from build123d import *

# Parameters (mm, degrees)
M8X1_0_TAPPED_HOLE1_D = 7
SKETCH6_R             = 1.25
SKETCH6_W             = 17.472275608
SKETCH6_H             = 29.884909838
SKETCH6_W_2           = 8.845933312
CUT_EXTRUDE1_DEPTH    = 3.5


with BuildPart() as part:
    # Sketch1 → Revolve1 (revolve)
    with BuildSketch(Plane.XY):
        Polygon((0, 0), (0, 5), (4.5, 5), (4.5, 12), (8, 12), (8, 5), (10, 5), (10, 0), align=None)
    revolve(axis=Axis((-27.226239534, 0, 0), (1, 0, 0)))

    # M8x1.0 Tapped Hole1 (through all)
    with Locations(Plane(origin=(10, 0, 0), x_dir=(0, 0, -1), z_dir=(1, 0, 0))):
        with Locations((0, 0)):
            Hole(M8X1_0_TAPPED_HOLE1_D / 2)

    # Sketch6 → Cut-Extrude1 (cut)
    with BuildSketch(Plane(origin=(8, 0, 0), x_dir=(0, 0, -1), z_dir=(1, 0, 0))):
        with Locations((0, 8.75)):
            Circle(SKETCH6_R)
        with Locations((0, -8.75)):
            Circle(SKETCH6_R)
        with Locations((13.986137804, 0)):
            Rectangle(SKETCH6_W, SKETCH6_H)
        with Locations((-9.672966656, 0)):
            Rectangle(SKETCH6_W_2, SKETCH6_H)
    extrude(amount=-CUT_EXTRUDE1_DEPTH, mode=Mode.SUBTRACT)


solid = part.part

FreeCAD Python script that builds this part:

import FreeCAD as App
import Part
import Sketcher
from FreeCAD import Vector

doc = App.newDocument("Part")
body = doc.addObject("PartDesign::Body", "Body")

# Sketch on XY plane
sketch1 = body.newObject("Sketcher::SketchObject", "Sketch")
sketch1.AttachmentSupport = (doc.getObject("XY_Plane"), [""])
sketch1.MapMode = "FlatFace"
sketch1.addGeometry(Part.LineSegment(Vector(0, 5, 0), Vector(0, 0, 0)), False)
sketch1.addGeometry(Part.LineSegment(Vector(0, 0, 0), Vector(10, 0, 0)), False)
sketch1.addGeometry(Part.LineSegment(Vector(10, 0, 0), Vector(10, 5, 0)), False)
sketch1.addGeometry(Part.LineSegment(Vector(10, 5, 0), Vector(8, 5, 0)), False)
sketch1.addGeometry(Part.LineSegment(Vector(8, 5, 0), Vector(8, 12, 0)), False)
sketch1.addGeometry(Part.LineSegment(Vector(8, 12, 0), Vector(4.5, 12, 0)), False)
sketch1.addGeometry(Part.LineSegment(Vector(4.5, 12, 0), Vector(4.5, 5, 0)), False)
sketch1.addGeometry(Part.LineSegment(Vector(4.5, 5, 0), Vector(0, 5, 0)), False)
sketch1.addConstraint(Sketcher.Constraint("Coincident", 0, 2, 1, 1))
sketch1.addConstraint(Sketcher.Constraint("Coincident", 1, 2, 2, 1))
sketch1.addConstraint(Sketcher.Constraint("Coincident", 2, 2, 3, 1))
sketch1.addConstraint(Sketcher.Constraint("Coincident", 3, 2, 4, 1))
sketch1.addConstraint(Sketcher.Constraint("Coincident", 4, 2, 5, 1))
sketch1.addConstraint(Sketcher.Constraint("Coincident", 5, 2, 6, 1))
sketch1.addConstraint(Sketcher.Constraint("Coincident", 6, 2, 7, 1))
sketch1.addConstraint(Sketcher.Constraint("Coincident", 7, 2, 0, 1))
sketch1.addConstraint(Sketcher.Constraint("Vertical", 0))
sketch1.addConstraint(Sketcher.Constraint("Horizontal", 1))
sketch1.addConstraint(Sketcher.Constraint("Vertical", 2))
sketch1.addConstraint(Sketcher.Constraint("Horizontal", 3))
sketch1.addConstraint(Sketcher.Constraint("Vertical", 4))
sketch1.addConstraint(Sketcher.Constraint("Horizontal", 5))
sketch1.addConstraint(Sketcher.Constraint("Vertical", 6))
sketch1.addConstraint(Sketcher.Constraint("Horizontal", 7))
sketch1.addConstraint(Sketcher.Constraint("Coincident", 0, 2, -1, 1))
sketch1.addConstraint(Sketcher.Constraint("Horizontal", 3, 2, 6, 2))
sketch1.addConstraint(Sketcher.Constraint("DistanceX", 1, 1, 1, 2, 10.0))
sketch1.addConstraint(Sketcher.Constraint("DistanceX", 3, 2, 3, 1, 2.0))
sketch1.addConstraint(Sketcher.Constraint("DistanceY", 0, 2, 0, 1, 5.0))
sketch1.addConstraint(Sketcher.Constraint("DistanceY", 4, 1, 4, 2, 7.0))
sketch1.addConstraint(Sketcher.Constraint("DistanceX", 5, 2, 5, 1, 3.5))
revolution = body.newObject("PartDesign::Revolution", "Revolution")
revolution.Profile = sketch1
revolution.ReferenceAxis = (sketch1, ["H_Axis"])
revolution.Angle = 360

# Sketch on YZ plane
sketch2 = body.newObject("Sketcher::SketchObject", "Sketch001")
sketch2.AttachmentSupport = (doc.getObject("YZ_Plane"), [""])
sketch2.MapMode = "FlatFace"
sketch2.AttachmentOffset = App.Placement(Vector(0, 0, 10), App.Rotation())
sketch2.addGeometry(Part.Circle(Vector(0, 0, 0), Vector(0, 0, 1), 3.5), False)
sketch2.addConstraint(Sketcher.Constraint("Coincident", 0, 3, -1, 1))
sketch2.addConstraint(Sketcher.Constraint("Diameter", 0, 7.0))
doc.recompute()
hole = body.newObject("PartDesign::Hole", "Hole")
hole.Profile = sketch2
hole.ThreadType = "None"
hole.Diameter = 7
hole.DepthType = "ThroughAll"

# Sketch on YZ plane
sketch3 = body.newObject("Sketcher::SketchObject", "Sketch002")
sketch3.AttachmentSupport = (doc.getObject("YZ_Plane"), [""])
sketch3.MapMode = "FlatFace"
sketch3.AttachmentOffset = App.Placement(Vector(0, 0, 8), App.Rotation())
sketch3.addGeometry(Part.Circle(Vector(8.8, 0, 0), Vector(0, 0, 1), 1.2), False)
sketch3.addGeometry(Part.Circle(Vector(-8.8, 0, 0), Vector(0, 0, 1), 1.2), False)
sketch3.addGeometry(Part.LineSegment(Vector(14.9, -5.2, 0), Vector(-14.9, -5.2, 0)), False)
sketch3.addGeometry(Part.LineSegment(Vector(-14.9, -5.2, 0), Vector(-14.9, -22.7, 0)), False)
sketch3.addGeometry(Part.LineSegment(Vector(-14.9, -22.7, 0), Vector(14.9, -22.7, 0)), False)
sketch3.addGeometry(Part.LineSegment(Vector(14.9, -22.7, 0), Vector(14.9, -5.2, 0)), False)
sketch3.addGeometry(Part.LineSegment(Vector(14.9, 14.1, 0), Vector(-14.9, 14.1, 0)), False)
sketch3.addGeometry(Part.LineSegment(Vector(-14.9, 14.1, 0), Vector(-14.9, 5.2, 0)), False)
sketch3.addGeometry(Part.LineSegment(Vector(-14.9, 5.2, 0), Vector(14.9, 5.2, 0)), False)
sketch3.addGeometry(Part.LineSegment(Vector(14.9, 5.2, 0), Vector(14.9, 14.1, 0)), False)
sketch3.addConstraint(Sketcher.Constraint("Coincident", 2, 2, 3, 1))
sketch3.addConstraint(Sketcher.Constraint("Coincident", 3, 2, 4, 1))
sketch3.addConstraint(Sketcher.Constraint("Coincident", 4, 2, 5, 1))
sketch3.addConstraint(Sketcher.Constraint("Coincident", 5, 2, 2, 1))
sketch3.addConstraint(Sketcher.Constraint("Coincident", 6, 2, 7, 1))
sketch3.addConstraint(Sketcher.Constraint("Coincident", 7, 2, 8, 1))
sketch3.addConstraint(Sketcher.Constraint("Coincident", 8, 2, 9, 1))
sketch3.addConstraint(Sketcher.Constraint("Coincident", 9, 2, 6, 1))
sketch3.addConstraint(Sketcher.Constraint("Horizontal", 2))
sketch3.addConstraint(Sketcher.Constraint("Vertical", 3))
sketch3.addConstraint(Sketcher.Constraint("Horizontal", 4))
sketch3.addConstraint(Sketcher.Constraint("Vertical", 5))
sketch3.addConstraint(Sketcher.Constraint("Horizontal", 6))
sketch3.addConstraint(Sketcher.Constraint("Vertical", 7))
sketch3.addConstraint(Sketcher.Constraint("Horizontal", 8))
sketch3.addConstraint(Sketcher.Constraint("Vertical", 9))
sketch3.addConstraint(Sketcher.Constraint("Equal", 0, 1))
sketch3.addConstraint(Sketcher.Constraint("Symmetric", 0, 3, 1, 3, -1, 1))
sketch3.addConstraint(Sketcher.Constraint("Symmetric", 5, 2, 7, 2, -1, 1))
sketch3.addConstraint(Sketcher.Constraint("PointOnObject", 0, 3, -1))
sketch3.addConstraint(Sketcher.Constraint("Vertical", 3, 2, 6, 2))
sketch3.addConstraint(Sketcher.Constraint("Vertical", 5, 2, 8, 2))
sketch3.addConstraint(Sketcher.Constraint("Diameter", 0, 2.5))
sketch3.addConstraint(Sketcher.Constraint("DistanceX", 1, 3, 0, 3, 17.5))
sketch3.addConstraint(Sketcher.Constraint("DistanceY", 2, 2, 7, 2, 10.5))
sketch3.addConstraint(Sketcher.Constraint("DistanceX", 2, 2, 2, 1, 29.88491))
sketch3.addConstraint(Sketcher.Constraint("DistanceY", 3, 2, 3, 1, 17.472276))
sketch3.addConstraint(Sketcher.Constraint("DistanceY", 7, 2, 7, 1, 8.845933))
pocket1 = body.newObject("PartDesign::Pocket", "Pocket")
pocket1.Profile = sketch3
pocket1.Length = 3.5

doc.recompute()
